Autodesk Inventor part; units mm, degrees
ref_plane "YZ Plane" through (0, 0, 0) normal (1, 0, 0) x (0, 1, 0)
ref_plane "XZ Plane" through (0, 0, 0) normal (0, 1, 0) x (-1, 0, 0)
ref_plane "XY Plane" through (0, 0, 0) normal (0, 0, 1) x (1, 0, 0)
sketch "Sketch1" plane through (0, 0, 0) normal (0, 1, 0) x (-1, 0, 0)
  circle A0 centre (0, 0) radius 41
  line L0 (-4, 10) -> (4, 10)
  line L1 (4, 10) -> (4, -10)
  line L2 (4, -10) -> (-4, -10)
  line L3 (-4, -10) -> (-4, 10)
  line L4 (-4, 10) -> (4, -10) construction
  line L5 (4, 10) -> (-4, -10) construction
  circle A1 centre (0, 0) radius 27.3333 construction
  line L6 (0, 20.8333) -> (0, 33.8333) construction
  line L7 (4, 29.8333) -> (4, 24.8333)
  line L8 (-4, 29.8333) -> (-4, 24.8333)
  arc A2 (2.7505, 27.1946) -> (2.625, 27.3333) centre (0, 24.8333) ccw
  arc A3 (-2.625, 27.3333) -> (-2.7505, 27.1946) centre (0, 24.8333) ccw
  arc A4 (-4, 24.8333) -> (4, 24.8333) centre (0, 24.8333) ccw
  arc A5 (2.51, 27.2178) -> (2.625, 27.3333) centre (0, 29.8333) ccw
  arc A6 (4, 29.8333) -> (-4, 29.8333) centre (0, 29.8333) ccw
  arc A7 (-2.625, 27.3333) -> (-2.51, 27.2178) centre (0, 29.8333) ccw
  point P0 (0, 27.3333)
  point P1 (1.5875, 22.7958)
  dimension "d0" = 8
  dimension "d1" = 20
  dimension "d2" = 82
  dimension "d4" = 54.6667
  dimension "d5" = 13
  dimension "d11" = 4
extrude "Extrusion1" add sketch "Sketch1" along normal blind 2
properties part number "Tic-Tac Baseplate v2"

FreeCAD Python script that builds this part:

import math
import FreeCAD as App
import Part
import Sketcher
Q = App.Units.Quantity

doc = App.newDocument("Part")
params = doc.addObject("Spreadsheet::Sheet", "Params")
for row, (alias, value) in enumerate([
    ("sketch1_diameter", "82 mm"),
    ("sketch1_radius", "4 mm"),
    ("sketch1_height", "20 mm"),
    ("sketch1_height2", "5 mm"),
    ("pad1_length", "2 mm"),
], start=1):
    params.set(f"A{row}", alias)
    params.set(f"B{row}", "=" + value)
    params.setAlias(f"B{row}", alias)

body = doc.addObject("PartDesign::Body", "Body")

sketch1 = body.newObject("Sketcher::SketchObject", "Sketch")
sketch1.AttachmentSupport = (doc.getObject("XZ_Plane"), [""])
sketch1.MapMode = "FlatFace"
sketch1.addGeometry(Part.Circle(App.Vector(0, 0, 0), App.Vector(0, 0, 1), 41), False)
sketch1.addGeometry(Part.LineSegment(App.Vector(4, -10, 0), App.Vector(4, 10, 0)), False)
sketch1.addGeometry(Part.LineSegment(App.Vector(4, 10, 0), App.Vector(-4, 10, 0)), False)
sketch1.addGeometry(Part.LineSegment(App.Vector(-4, 10, 0), App.Vector(-4, -10, 0)), False)
sketch1.addGeometry(Part.LineSegment(App.Vector(-4, -10, 0), App.Vector(4, -10, 0)), False)
sketch1.addGeometry(Part.ArcOfCircle(Part.Circle(App.Vector(0, 29.8333, 0), App.Vector(0, 0, 1), 4), math.radians(0), math.radians(180)), False)
sketch1.addGeometry(Part.LineSegment(App.Vector(-4, 29.8333, 0), App.Vector(-4, 24.8333, 0)), False)
sketch1.addGeometry(Part.ArcOfCircle(Part.Circle(App.Vector(0, 24.8333, 0), App.Vector(0, 0, 1), 4), math.radians(180), math.radians(360)), False)
sketch1.addGeometry(Part.LineSegment(App.Vector(4, 24.8333, 0), App.Vector(4, 29.8333, 0)), False)
sketch1.addConstraint(Sketcher.Constraint("Coincident", 1, 2, 2, 1))
sketch1.addConstraint(Sketcher.Constraint("Coincident", 2, 2, 3, 1))
sketch1.addConstraint(Sketcher.Constraint("Coincident", 3, 2, 4, 1))
sketch1.addConstraint(Sketcher.Constraint("Coincident", 4, 2, 1, 1))
sketch1.addConstraint(Sketcher.Constraint("Tangent", 5, 2, 6, 1))
sketch1.addConstraint(Sketcher.Constraint("Tangent", 6, 2, 7, 1))
sketch1.addConstraint(Sketcher.Constraint("Tangent", 7, 2, 8, 1))
sketch1.addConstraint(Sketcher.Constraint("Tangent", 8, 2, 5, 1))
sketch1.addConstraint(Sketcher.Constraint("Vertical", 1))
sketch1.addConstraint(Sketcher.Constraint("Horizontal", 2))
sketch1.addConstraint(Sketcher.Constraint("Vertical", 3))
sketch1.addConstraint(Sketcher.Constraint("Horizontal", 4))
sketch1.addConstraint(Sketcher.Constraint("Vertical", 6))
sketch1.addConstraint(Sketcher.Constraint("Vertical", 8))
sketch1.addConstraint(Sketcher.Constraint("Coincident", 0, 3, -1, 1))
sketch1.addConstraint(Sketcher.Constraint("Symmetric", 1, 2, 3, 2, -1, 1))
sketch1.addConstraint(Sketcher.Constraint("PointOnObject", 5, 3, -2))
sketch1.addConstraint(Sketcher.Constraint("Vertical", 3, 2, 5, 2))
sketch1.addConstraint(Sketcher.Constraint("Diameter", 0, Q("82 mm")))
sketch1.addConstraint(Sketcher.Constraint("Radius", 5, Q("4 mm")))
sketch1.addConstraint(Sketcher.Constraint("DistanceY", 1, 1, 1, 2, Q("20 mm")))
sketch1.addConstraint(Sketcher.Constraint("DistanceY", 6, 2, 6, 1, Q("5 mm")))
sketch1.addConstraint(Sketcher.Constraint("DistanceY", -1, 1, 5, 3, Q("29.8333 mm")))
sketch1.setExpression("Constraints[18]", "Params.sketch1_diameter")
sketch1.setExpression("Constraints[19]", "Params.sketch1_radius")
sketch1.setExpression("Constraints[20]", "Params.sketch1_height")
sketch1.setExpression("Constraints[21]", "Params.sketch1_height2")
pad1 = body.newObject("PartDesign::Pad", "Pad")
pad1.Profile = sketch1
pad1.setExpression("Length", "Params.pad1_length")
pad1.Reversed = True

doc.recompute()
